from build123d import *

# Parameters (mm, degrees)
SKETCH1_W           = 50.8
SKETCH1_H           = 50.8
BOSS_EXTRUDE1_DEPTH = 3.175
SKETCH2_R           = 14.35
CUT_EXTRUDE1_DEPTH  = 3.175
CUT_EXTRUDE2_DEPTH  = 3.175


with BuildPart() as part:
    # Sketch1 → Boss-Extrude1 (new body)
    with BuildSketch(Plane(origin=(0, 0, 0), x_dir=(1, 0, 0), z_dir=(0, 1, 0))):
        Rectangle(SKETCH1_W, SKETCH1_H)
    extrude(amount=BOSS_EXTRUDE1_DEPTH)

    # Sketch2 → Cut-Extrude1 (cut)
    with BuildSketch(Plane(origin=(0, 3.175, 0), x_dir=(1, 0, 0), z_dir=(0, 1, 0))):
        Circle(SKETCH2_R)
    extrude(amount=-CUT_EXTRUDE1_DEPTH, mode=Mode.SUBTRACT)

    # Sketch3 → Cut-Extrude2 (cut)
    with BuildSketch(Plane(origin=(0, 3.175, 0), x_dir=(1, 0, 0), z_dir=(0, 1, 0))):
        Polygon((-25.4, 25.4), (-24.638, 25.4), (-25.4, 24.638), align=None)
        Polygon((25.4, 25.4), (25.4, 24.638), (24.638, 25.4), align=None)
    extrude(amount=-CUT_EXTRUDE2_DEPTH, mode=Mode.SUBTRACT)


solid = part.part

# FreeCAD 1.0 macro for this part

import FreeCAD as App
import Part
import Sketcher

V = App.Vector
Q = App.Units.Quantity


def add_polygon(sketch, points):
    """Adds a closed chain of lines whose ends are joined by coincident constraints."""
    first, n = sketch.GeometryCount, len(points)
    for a, b in zip(points, points[1:] + points[:1]):
        sketch.addGeometry(Part.LineSegment(App.Vector(*a, 0), App.Vector(*b, 0)), False)
    for i in range(n):
        sketch.addConstraint(Sketcher.Constraint("Coincident", first + i, 2, first + (i + 1) % n, 1))

doc = App.newDocument("Part")
body = doc.addObject("PartDesign::Body", "Body")

sketch1 = body.newObject("Sketcher::SketchObject", "Sketch")
sketch1.AttachmentSupport = (doc.getObject("XZ_Plane"), [""])
sketch1.MapMode = "FlatFace"
add_polygon(sketch1, [(-25.4, -25.4), (-25.4, 25.4), (25.4, 25.4), (25.4, -25.4)])
sketch1.addConstraint(Sketcher.Constraint("Vertical", 0))
sketch1.addConstraint(Sketcher.Constraint("Horizontal", 1))
sketch1.addConstraint(Sketcher.Constraint("Vertical", 2))
sketch1.addConstraint(Sketcher.Constraint("Horizontal", 3))
sketch1.addConstraint(Sketcher.Constraint("Symmetric", 0, 2, 2, 2, -1, 1))
sketch1.addConstraint(Sketcher.Constraint("Equal", 3, 0))
sketch1.addConstraint(Sketcher.Constraint("DistanceX", 1, 1, 1, 2, Q("2 in")))
pad1 = body.newObject("PartDesign::Pad", "Pad")
pad1.Profile = sketch1
pad1.Length = Q("0.125 in")
pad1.Reversed = True

sketch2 = body.newObject("Sketcher::SketchObject", "Sketch001")
sketch2.AttachmentSupport = (doc.getObject("XZ_Plane"), [""])
sketch2.MapMode = "FlatFace"
sketch2.AttachmentOffset = App.Placement(V(0, 0, -0.125 * 25.4), App.Rotation())
sketch2.addGeometry(Part.Circle(V(0, 0, 0), V(0, 0, 1), 14.35), False)
sketch2.addConstraint(Sketcher.Constraint("Coincident", 0, 3, -1, 1))
sketch2.addConstraint(Sketcher.Constraint("Diameter", 0, 28.7))
pocket1 = body.newObject("PartDesign::Pocket", "Pocket")
pocket1.Profile = sketch2
pocket1.Length = Q("0.125 in")
pocket1.Reversed = True

sketch3 = body.newObject("Sketcher::SketchObject", "Sketch002")
sketch3.AttachmentSupport = (doc.getObject("XZ_Plane"), [""])
sketch3.MapMode = "FlatFace"
sketch3.AttachmentOffset = App.Placement(V(0, 0, -0.125 * 25.4), App.Rotation())
add_polygon(sketch3, [(-24.638, -25.4), (-25.4, -25.4), (-25.4, -24.638)])
add_polygon(sketch3, [(25.4, -24.638), (25.4, -25.4), (24.638, -25.4)])
sketch3.addConstraint(Sketcher.Constraint("Horizontal", 0))
sketch3.addConstraint(Sketcher.Constraint("Vertical", 1))
sketch3.addConstraint(Sketcher.Constraint("Vertical", 3))
sketch3.addConstraint(Sketcher.Constraint("Horizontal", 4))
sketch3.addConstraint(Sketcher.Constraint("Symmetric", 0, 2, 3, 2, -2))
sketch3.addConstraint(Sketcher.Constraint("Perpendicular", 2, 5))
sketch3.addConstraint(Sketcher.Constraint("Horizontal", 1, 2, 5, 2))
sketch3.addConstraint(Sketcher.Constraint("Equal", 0, 4))
sketch3.addConstraint(Sketcher.Constraint("DistanceX", 0, 2, -1, 1, Q("1 in")))
sketch3.addConstraint(Sketcher.Constraint("DistanceY", 0, 2, -1, 1, Q("1 in")))
sketch3.addConstraint(Sketcher.Constraint("DistanceX", 0, 2, 0, 1, Q("0.03 in")))
pocket2 = body.newObject("PartDesign::Pocket", "Pocket001")
pocket2.Profile = sketch3
pocket2.Length = Q("0.125 in")
pocket2.Reversed = True

doc.recompute()
